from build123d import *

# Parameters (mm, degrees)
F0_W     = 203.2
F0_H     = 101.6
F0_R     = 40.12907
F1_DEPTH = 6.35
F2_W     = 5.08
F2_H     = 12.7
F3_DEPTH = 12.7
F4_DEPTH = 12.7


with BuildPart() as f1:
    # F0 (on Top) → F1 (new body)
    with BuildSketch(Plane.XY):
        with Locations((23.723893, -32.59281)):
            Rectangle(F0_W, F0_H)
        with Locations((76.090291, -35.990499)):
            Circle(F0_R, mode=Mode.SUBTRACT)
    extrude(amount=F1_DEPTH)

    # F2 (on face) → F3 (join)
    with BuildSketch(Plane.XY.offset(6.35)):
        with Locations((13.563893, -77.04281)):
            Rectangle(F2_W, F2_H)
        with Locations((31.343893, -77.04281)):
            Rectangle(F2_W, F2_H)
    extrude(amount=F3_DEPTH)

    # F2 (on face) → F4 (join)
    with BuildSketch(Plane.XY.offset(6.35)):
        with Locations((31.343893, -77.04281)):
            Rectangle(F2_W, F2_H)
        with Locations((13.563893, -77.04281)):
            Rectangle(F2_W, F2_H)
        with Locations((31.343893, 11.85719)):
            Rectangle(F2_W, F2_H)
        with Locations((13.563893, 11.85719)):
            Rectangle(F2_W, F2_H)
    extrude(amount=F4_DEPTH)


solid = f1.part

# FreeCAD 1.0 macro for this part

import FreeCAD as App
import Part
import Sketcher

V = App.Vector
Q = App.Units.Quantity


def add_polygon(sketch, points):
    """Adds a closed chain of lines whose ends are joined by coincident constraints."""
    first, n = sketch.GeometryCount, len(points)
    for a, b in zip(points, points[1:] + points[:1]):
        sketch.addGeometry(Part.LineSegment(App.Vector(*a, 0), App.Vector(*b, 0)), False)
    for i in range(n):
        sketch.addConstraint(Sketcher.Constraint("Coincident", first + i, 2, first + (i + 1) % n, 1))

doc = App.newDocument("Part")
body = doc.addObject("PartDesign::Body", "Body")

sketch1 = body.newObject("Sketcher::SketchObject", "Sketch")
sketch1.AttachmentSupport = (doc.getObject("XY_Plane"), [""])
sketch1.MapMode = "FlatFace"
add_polygon(sketch1, [(-78, 18), (-78, -83), (125, -83), (125, 18)])
sketch1.addGeometry(Part.Circle(V(76, -36, 0), V(0, 0, 1), 40), False)
sketch1.addConstraint([
    Sketcher.Constraint("Vertical", 0),
    Sketcher.Constraint("Horizontal", 1),
    Sketcher.Constraint("Vertical", 2),
    Sketcher.Constraint("Horizontal", 3),
    Sketcher.Constraint("DistanceX", 1, 1, 1, 2, Q("8 in")),
    Sketcher.Constraint("DistanceY", 0, 2, 0, 1, Q("4 in")),
    Sketcher.Constraint("Diameter", 4, Q("80.25814 mm")),
    Sketcher.Constraint("DistanceY", 4, 3, -1, 1, Q("35.990499 mm")),
    Sketcher.Constraint("DistanceX", 0, 2, 4, 3, Q("153.966398 mm")),
    Sketcher.Constraint("DistanceX", -1, 1, 4, 3, Q("76.090291 mm")),
    Sketcher.Constraint("DistanceY", 0, 2, -1, 1, Q("83.39281 mm")),
])
pad1 = body.newObject("PartDesign::Pad", "Pad")
pad1.Profile = sketch1
pad1.Length = Q("0.25 in")

sketch2 = body.newObject("Sketcher::SketchObject", "Sketch001")
sketch2.AttachmentSupport = (doc.getObject("XY_Plane"), [""])
sketch2.MapMode = "FlatFace"
sketch2.AttachmentOffset = App.Placement(V(0, 0, 0.25 * 25.4), App.Rotation())
add_polygon(sketch2, [(11, -71), (11, -83), (16, -83), (16, -71)])
add_polygon(sketch2, [(29, -71), (29, -83), (34, -83), (34, -71)])
sketch2.addConstraint([
    Sketcher.Constraint("Vertical", 0),
    Sketcher.Constraint("Horizontal", 1),
    Sketcher.Constraint("Vertical", 2),
    Sketcher.Constraint("Horizontal", 3),
    Sketcher.Constraint("Vertical", 4),
    Sketcher.Constraint("Horizontal", 5),
    Sketcher.Constraint("Vertical", 6),
    Sketcher.Constraint("Horizontal", 7),
    Sketcher.Constraint("Horizontal", 1, 2, 4, 2),
    Sketcher.Constraint("Horizontal", 3, 2, 6, 2),
    Sketcher.Constraint("Equal", 3, 5),
    Sketcher.Constraint("DistanceX", 1, 1, 1, 2, Q("0.2 in")),
    Sketcher.Constraint("DistanceY", 0, 2, 0, 1, Q("0.5 in")),
    Sketcher.Constraint("DistanceX", 1, 2, 4, 2, Q("0.5 in")),
    Sketcher.Constraint("DistanceY", 0, 2, -1, 1, Q("83.39281 mm")),
    Sketcher.Constraint("DistanceX", -1, 1, 0, 2, Q("11.023893 mm")),
])
pad2 = body.newObject("PartDesign::Pad", "Pad001")
pad2.Profile = sketch2
pad2.Length = Q("0.5 in")

sketch3 = body.newObject("Sketcher::SketchObject", "Sketch002")
sketch3.AttachmentSupport = (doc.getObject("XY_Plane"), [""])
sketch3.MapMode = "FlatFace"
sketch3.AttachmentOffset = App.Placement(V(0, 0, 0.25 * 25.4), App.Rotation())
add_polygon(sketch3, [(29, -71), (29, -83), (34, -83), (34, -71)])
add_polygon(sketch3, [(11, -71), (11, -83), (16, -83), (16, -71)])
add_polygon(sketch3, [(29, 18), (29, 6), (34, 6), (34, 18)])
add_polygon(sketch3, [(11, 18), (11, 6), (16, 6), (16, 18)])
sketch3.addConstraint([
    Sketcher.Constraint("Vertical", 0),
    Sketcher.Constraint("Horizontal", 1),
    Sketcher.Constraint("Vertical", 2),
    Sketcher.Constraint("Horizontal", 3),
    Sketcher.Constraint("Vertical", 4),
    Sketcher.Constraint("Horizontal", 5),
    Sketcher.Constraint("Vertical", 6),
    Sketcher.Constraint("Horizontal", 7),
    Sketcher.Constraint("Vertical", 8),
    Sketcher.Constraint("Horizontal", 9),
    Sketcher.Constraint("Vertical", 10),
    Sketcher.Constraint("Horizontal", 11),
    Sketcher.Constraint("Vertical", 12),
    Sketcher.Constraint("Horizontal", 13),
    Sketcher.Constraint("Vertical", 14),
    Sketcher.Constraint("Horizontal", 15),
    Sketcher.Constraint("Horizontal", 1, 2, 4, 2),
    Sketcher.Constraint("Horizontal", 3, 2, 6, 2),
    Sketcher.Constraint("Horizontal", 9, 2, 12, 2),
    Sketcher.Constraint("Horizontal", 11, 2, 14, 2),
    Sketcher.Constraint("Vertical", 3, 2, 8, 2),
    Sketcher.Constraint("Vertical", 2, 2, 9, 2),
    Sketcher.Constraint("Vertical", 7, 2, 12, 2),
    Sketcher.Constraint("Vertical", 6, 2, 13, 2),
    Sketcher.Constraint("Equal", 3, 5),
    Sketcher.Constraint("Equal", 6, 8),
    Sketcher.Constraint("DistanceX", 1, 1, 1, 2, Q("0.2 in")),
    Sketcher.Constraint("DistanceY", 0, 2, 0, 1, Q("0.5 in")),
    Sketcher.Constraint("DistanceY", 3, 2, 8, 2, Q("3 in")),
    Sketcher.Constraint("DistanceX", 4, 2, 0, 2, Q("0.7 in")),
    Sketcher.Constraint("DistanceY", 0, 2, -1, 1, Q("83.39281 mm")),
    Sketcher.Constraint("DistanceX", -1, 1, 0, 2, Q("28.803893 mm")),
])
pad3 = body.newObject("PartDesign::Pad", "Pad002")
pad3.Profile = sketch3
pad3.Length = Q("0.5 in")

doc.recompute()
